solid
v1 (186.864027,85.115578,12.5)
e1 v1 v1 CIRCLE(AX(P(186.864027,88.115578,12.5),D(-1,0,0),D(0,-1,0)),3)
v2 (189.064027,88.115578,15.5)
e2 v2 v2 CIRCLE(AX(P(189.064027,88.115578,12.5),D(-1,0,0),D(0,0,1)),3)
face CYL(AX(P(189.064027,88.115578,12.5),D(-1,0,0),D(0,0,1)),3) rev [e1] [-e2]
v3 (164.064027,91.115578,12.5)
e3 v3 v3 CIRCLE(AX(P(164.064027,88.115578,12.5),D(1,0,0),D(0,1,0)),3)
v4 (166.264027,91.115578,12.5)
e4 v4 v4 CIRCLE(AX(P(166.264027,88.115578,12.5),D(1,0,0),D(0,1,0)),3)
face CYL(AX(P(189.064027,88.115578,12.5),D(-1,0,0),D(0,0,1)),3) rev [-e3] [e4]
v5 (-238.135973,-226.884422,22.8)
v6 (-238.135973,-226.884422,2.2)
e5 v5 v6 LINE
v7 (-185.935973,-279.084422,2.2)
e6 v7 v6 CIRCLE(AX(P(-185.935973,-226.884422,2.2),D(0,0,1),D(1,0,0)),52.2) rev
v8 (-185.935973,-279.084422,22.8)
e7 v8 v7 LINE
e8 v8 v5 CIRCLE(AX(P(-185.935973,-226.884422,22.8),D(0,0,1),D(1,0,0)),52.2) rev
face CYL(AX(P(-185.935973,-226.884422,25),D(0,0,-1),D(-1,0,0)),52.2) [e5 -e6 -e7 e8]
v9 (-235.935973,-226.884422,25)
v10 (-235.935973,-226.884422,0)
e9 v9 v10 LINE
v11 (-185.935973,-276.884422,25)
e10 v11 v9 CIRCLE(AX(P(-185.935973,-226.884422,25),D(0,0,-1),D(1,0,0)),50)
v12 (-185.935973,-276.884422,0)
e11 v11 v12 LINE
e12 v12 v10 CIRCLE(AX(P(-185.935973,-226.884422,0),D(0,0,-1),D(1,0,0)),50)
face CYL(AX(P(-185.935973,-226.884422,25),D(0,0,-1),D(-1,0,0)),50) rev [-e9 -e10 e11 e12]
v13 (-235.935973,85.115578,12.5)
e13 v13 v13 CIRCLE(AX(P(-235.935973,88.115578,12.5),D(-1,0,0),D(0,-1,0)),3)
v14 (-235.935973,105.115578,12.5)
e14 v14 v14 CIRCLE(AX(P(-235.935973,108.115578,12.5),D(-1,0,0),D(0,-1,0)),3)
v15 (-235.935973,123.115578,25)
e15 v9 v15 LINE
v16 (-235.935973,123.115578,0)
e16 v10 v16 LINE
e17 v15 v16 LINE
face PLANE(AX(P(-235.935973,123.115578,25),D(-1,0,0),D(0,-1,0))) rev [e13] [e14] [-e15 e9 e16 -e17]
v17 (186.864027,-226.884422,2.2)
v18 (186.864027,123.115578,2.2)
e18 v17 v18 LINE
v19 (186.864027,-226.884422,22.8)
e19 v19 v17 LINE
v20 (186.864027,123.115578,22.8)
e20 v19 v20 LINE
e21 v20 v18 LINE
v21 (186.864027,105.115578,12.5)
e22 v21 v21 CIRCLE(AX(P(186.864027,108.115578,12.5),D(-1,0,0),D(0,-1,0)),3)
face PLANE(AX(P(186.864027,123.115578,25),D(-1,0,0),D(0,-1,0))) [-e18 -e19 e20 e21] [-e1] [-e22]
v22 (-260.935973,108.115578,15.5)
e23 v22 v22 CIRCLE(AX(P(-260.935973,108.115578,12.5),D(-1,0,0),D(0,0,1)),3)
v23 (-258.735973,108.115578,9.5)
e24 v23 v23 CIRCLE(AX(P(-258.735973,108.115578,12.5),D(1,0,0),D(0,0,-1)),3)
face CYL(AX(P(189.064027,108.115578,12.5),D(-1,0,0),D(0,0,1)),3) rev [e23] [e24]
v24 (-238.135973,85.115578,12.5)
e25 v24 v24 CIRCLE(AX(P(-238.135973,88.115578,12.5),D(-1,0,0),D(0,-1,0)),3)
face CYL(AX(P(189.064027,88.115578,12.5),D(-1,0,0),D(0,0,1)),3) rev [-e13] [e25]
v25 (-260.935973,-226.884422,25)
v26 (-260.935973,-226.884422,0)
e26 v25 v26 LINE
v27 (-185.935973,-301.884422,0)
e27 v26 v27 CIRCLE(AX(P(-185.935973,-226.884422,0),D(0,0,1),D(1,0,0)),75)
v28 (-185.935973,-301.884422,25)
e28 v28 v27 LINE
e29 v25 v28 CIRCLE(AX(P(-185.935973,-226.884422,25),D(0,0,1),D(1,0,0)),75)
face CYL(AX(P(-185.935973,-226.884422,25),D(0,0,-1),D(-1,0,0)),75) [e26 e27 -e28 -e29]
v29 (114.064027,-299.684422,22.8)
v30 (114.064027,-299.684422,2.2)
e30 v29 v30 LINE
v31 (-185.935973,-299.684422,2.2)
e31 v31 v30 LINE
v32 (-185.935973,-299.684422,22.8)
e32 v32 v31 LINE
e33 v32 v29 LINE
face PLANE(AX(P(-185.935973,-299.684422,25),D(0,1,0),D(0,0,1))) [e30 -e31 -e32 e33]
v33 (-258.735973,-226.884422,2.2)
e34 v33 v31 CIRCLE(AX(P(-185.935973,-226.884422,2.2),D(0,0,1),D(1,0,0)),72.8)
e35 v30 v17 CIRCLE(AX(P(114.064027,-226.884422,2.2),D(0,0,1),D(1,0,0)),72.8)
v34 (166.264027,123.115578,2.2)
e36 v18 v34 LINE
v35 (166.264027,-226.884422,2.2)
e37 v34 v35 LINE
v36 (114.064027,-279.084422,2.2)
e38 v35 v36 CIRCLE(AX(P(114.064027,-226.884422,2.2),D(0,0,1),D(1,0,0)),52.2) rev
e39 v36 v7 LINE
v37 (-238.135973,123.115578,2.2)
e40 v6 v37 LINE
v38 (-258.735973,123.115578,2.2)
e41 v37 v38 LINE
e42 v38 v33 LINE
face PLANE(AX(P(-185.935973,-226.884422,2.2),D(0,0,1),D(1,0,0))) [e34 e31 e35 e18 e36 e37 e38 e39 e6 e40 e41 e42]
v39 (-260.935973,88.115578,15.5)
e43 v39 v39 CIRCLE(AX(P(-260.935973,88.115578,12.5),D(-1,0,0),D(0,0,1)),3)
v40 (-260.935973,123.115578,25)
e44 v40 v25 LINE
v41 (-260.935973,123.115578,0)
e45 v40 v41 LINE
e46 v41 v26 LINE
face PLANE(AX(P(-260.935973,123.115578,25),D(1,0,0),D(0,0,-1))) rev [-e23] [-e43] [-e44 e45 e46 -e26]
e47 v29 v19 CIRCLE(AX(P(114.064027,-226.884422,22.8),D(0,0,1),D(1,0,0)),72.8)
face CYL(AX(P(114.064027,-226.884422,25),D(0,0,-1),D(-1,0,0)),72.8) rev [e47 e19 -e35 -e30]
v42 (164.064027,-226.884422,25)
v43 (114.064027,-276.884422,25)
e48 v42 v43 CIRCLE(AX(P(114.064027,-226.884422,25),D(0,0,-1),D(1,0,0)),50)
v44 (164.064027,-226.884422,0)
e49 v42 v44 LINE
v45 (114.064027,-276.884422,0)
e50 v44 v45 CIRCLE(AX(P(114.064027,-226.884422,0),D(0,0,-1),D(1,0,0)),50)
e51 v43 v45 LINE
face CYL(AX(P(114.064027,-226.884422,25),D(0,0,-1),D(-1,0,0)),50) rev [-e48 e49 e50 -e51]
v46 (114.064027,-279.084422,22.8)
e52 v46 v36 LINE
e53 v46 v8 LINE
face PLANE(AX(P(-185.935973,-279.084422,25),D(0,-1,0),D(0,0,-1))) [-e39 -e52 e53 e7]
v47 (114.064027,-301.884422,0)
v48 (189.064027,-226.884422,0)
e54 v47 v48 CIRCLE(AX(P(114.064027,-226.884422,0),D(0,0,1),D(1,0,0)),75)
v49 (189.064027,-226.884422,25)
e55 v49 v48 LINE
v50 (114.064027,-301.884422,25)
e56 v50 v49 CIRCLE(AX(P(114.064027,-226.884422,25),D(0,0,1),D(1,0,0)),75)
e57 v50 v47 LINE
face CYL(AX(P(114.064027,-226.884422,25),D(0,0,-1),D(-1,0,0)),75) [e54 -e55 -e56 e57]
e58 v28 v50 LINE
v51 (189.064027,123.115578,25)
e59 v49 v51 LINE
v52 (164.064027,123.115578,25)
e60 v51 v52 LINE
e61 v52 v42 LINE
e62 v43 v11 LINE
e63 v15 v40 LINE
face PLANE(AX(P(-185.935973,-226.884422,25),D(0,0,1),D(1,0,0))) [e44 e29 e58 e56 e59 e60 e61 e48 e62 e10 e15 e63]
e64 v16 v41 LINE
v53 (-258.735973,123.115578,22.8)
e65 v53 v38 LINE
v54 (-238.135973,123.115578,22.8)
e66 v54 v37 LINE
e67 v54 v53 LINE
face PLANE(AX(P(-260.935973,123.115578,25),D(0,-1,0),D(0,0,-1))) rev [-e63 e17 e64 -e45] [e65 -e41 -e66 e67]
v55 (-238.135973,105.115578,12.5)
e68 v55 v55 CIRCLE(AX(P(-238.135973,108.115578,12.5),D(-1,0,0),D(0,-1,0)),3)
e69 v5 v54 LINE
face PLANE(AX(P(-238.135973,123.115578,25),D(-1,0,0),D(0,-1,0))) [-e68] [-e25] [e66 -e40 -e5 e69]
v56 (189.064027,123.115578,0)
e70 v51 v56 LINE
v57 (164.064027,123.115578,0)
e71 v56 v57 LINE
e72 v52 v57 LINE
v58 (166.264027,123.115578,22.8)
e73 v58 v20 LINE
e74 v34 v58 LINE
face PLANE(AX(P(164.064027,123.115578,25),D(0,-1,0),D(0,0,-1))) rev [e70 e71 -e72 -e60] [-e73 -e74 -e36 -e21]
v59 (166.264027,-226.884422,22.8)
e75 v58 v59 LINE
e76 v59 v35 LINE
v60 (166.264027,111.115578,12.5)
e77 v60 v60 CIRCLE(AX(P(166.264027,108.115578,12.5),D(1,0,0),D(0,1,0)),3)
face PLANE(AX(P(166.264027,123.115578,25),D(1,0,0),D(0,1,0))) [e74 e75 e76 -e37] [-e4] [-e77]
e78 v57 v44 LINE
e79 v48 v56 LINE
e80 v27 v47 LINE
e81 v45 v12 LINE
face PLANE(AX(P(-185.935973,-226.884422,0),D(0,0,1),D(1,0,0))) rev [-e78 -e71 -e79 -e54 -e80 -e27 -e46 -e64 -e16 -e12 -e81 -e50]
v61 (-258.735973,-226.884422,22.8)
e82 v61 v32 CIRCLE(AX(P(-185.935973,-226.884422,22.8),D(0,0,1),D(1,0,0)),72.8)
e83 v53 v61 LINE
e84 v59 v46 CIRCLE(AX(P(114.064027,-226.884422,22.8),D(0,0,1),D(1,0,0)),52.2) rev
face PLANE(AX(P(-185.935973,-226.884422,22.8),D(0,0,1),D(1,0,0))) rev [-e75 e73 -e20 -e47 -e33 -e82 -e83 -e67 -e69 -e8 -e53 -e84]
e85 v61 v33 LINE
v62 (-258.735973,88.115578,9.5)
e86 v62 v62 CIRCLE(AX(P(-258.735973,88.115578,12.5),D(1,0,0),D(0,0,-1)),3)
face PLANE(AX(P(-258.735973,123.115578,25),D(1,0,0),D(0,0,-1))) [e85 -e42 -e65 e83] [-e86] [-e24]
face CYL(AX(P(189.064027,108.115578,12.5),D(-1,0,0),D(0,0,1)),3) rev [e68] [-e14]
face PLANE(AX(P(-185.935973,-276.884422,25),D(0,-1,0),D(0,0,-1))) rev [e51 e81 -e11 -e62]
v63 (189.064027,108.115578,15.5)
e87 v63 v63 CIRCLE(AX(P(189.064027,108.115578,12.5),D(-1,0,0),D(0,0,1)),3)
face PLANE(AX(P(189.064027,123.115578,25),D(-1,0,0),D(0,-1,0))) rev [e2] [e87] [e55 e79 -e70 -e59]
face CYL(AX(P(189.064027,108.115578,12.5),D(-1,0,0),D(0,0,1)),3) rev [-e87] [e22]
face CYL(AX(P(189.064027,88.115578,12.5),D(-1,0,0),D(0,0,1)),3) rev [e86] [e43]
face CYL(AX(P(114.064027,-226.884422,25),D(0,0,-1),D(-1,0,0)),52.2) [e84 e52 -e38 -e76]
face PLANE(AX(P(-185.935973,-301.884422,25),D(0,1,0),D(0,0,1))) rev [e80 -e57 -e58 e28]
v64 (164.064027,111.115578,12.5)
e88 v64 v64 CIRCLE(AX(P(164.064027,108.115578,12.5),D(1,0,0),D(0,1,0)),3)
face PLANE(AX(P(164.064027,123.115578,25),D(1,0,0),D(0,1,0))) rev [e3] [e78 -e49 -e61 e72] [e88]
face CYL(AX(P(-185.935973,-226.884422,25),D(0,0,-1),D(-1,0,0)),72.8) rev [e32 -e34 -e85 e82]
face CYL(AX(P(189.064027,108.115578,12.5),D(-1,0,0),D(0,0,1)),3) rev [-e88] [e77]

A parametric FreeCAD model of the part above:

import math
import FreeCAD as App
import Part
import Sketcher
from FreeCAD import Vector
Q = App.Units.Quantity


def faces_at(feature, points):
    """Names of the faces that lie closest to the given points."""
    faces = feature.Shape.Faces
    near = lambda p: min(range(len(faces)), key=lambda i: faces[i].distToShape(Part.Vertex(*p))[0])
    return sorted({f"Face{near(p) + 1}" for p in points})

doc = App.newDocument("Part")
body = doc.addObject("PartDesign::Body", "Body")

sketch1 = body.newObject("Sketcher::SketchObject", "Sketch")
sketch1.AttachmentSupport = (doc.getObject("XY_Plane"), [""])
sketch1.MapMode = "FlatFace"
sketch1.addGeometry([
    Part.LineSegment(Vector(-261, 123, 0), Vector(-261, -227, 0)),
    Part.ArcOfCircle(Part.Circle(Vector(-186, -227, 0), Vector(0, 0, 1), 75), math.radians(180), math.radians(270)),
    Part.LineSegment(Vector(-186, -302, 0), Vector(114, -302, 0)),
    Part.ArcOfCircle(Part.Circle(Vector(114, -227, 0), Vector(0, 0, 1), 75), math.radians(-90), math.radians(0)),
    Part.LineSegment(Vector(189, -227, 0), Vector(189, 123, 0)),
    Part.LineSegment(Vector(189, 123, 0), Vector(164, 123, 0)),
    Part.LineSegment(Vector(164, 123, 0), Vector(164, -227, 0)),
    Part.ArcOfCircle(Part.Circle(Vector(114, -227, 0), Vector(0, 0, 1), 50), math.radians(-90), math.radians(0)),
    Part.LineSegment(Vector(114, -277, 0), Vector(-186, -277, 0)),
    Part.ArcOfCircle(Part.Circle(Vector(-186, -227, 0), Vector(0, 0, 1), 50), math.radians(-180), math.radians(-90)),
    Part.LineSegment(Vector(-236, -227, 0), Vector(-236, 123, 0)),
    Part.LineSegment(Vector(-236, 123, 0), Vector(-261, 123, 0)),
], False)
sketch1.addConstraint([
    Sketcher.Constraint("Tangent", 0, 2, 1, 1),
    Sketcher.Constraint("Tangent", 1, 2, 2, 1),
    Sketcher.Constraint("Tangent", 2, 2, 3, 1),
    Sketcher.Constraint("Tangent", 3, 2, 4, 1),
    Sketcher.Constraint("Coincident", 4, 2, 5, 1),
    Sketcher.Constraint("Coincident", 5, 2, 6, 1),
    Sketcher.Constraint("Tangent", 6, 2, 7, 2),
    Sketcher.Constraint("Tangent", 7, 1, 8, 1),
    Sketcher.Constraint("Tangent", 8, 2, 9, 2),
    Sketcher.Constraint("Tangent", 9, 1, 10, 1),
    Sketcher.Constraint("Coincident", 10, 2, 11, 1),
    Sketcher.Constraint("Coincident", 11, 2, 0, 1),
    Sketcher.Constraint("Vertical", 0),
    Sketcher.Constraint("Horizontal", 2),
    Sketcher.Constraint("Vertical", 4),
    Sketcher.Constraint("Horizontal", 5),
    Sketcher.Constraint("Vertical", 6),
    Sketcher.Constraint("Horizontal", 8),
    Sketcher.Constraint("Vertical", 10),
    Sketcher.Constraint("Horizontal", 11),
    Sketcher.Constraint("Coincident", 7, 3, 3, 3),
    Sketcher.Constraint("Coincident", 9, 3, 1, 3),
    Sketcher.Constraint("Equal", 1, 3),
    Sketcher.Constraint("Horizontal", 5, 2, 10, 2),
    Sketcher.Constraint("Radius", 1, Q("75 mm")),
    Sketcher.Constraint("Radius", 7, Q("50 mm")),
    Sketcher.Constraint("DistanceX", 2, 1, 2, 2, Q("300 mm")),
    Sketcher.Constraint("DistanceY", 0, 2, 0, 1, Q("350 mm")),
    Sketcher.Constraint("DistanceX", 1, 3, -1, 1, Q("185.935973 mm")),
    Sketcher.Constraint("DistanceY", 1, 3, -1, 1, Q("226.884422 mm")),
])
pad1 = body.newObject("PartDesign::Pad", "Pad")
pad1.Profile = sketch1
pad1.Length = 25
doc.recompute()

thickness = body.newObject("PartDesign::Thickness", "Thickness")
thickness.Base = (pad1, faces_at(pad1, [(-248.436, 123.116, 12.5)]))
thickness.Value = 2.2
thickness.Reversed = True
thickness.Join = "Intersection"

sketch2 = body.newObject("Sketcher::SketchObject", "Sketch001")
sketch2.AttachmentSupport = (doc.getObject("XZ_Plane"), [""])
sketch2.MapMode = "FlatFace"
sketch2.AttachmentOffset = App.Placement(Vector(0, 0, -123.115578), App.Rotation())
sketch2.addGeometry([
    Part.LineSegment(Vector(166, 2, 0), Vector(166, 23, 0)),
    Part.LineSegment(Vector(166, 23, 0), Vector(187, 23, 0)),
    Part.LineSegment(Vector(187, 23, 0), Vector(187, 2, 0)),
    Part.LineSegment(Vector(187, 2, 0), Vector(166, 2, 0)),
], False)
sketch2.addConstraint([
    Sketcher.Constraint("Coincident", 0, 2, 1, 1),
    Sketcher.Constraint("Coincident", 1, 2, 2, 1),
    Sketcher.Constraint("Coincident", 2, 2, 3, 1),
    Sketcher.Constraint("Coincident", 3, 2, 0, 1),
    Sketcher.Constraint("Vertical", 0),
    Sketcher.Constraint("Horizontal", 1),
    Sketcher.Constraint("Vertical", 2),
    Sketcher.Constraint("Horizontal", 3),
    Sketcher.Constraint("Equal", 3, 0),
    Sketcher.Constraint("DistanceX", 1, 1, 1, 2, Q("20.6 mm")),
    Sketcher.Constraint("DistanceY", -1, 1, 0, 2, Q("22.8 mm")),
    Sketcher.Constraint("DistanceX", -1, 1, 0, 2, Q("166.264027 mm")),
])
pocket1 = body.newObject("PartDesign::Pocket", "Pocket")
pocket1.Profile = sketch2
pocket1.Length = 5
pocket1.Reversed = True

sketch3 = body.newObject("Sketcher::SketchObject", "Sketch002")
sketch3.AttachmentSupport = (doc.getObject("YZ_Plane"), [""])
sketch3.MapMode = "FlatFace"
sketch3.AttachmentOffset = App.Placement(Vector(0, 0, -260.935973), App.Rotation())
sketch3.addGeometry([
    Part.Circle(Vector(108.1, 12.5, 0), Vector(0, 0, 1), 3),
    Part.Circle(Vector(88.1, 12.5, 0), Vector(0, 0, 1), 3),
], False)
sketch3.addConstraint([
    Sketcher.Constraint("Equal", 0, 1),
    Sketcher.Constraint("Horizontal", 0, 3, 1, 3),
    Sketcher.Constraint("Diameter", 0, Q("6 mm")),
    Sketcher.Constraint("DistanceX", 1, 3, 0, 3, Q("20 mm")),
    Sketcher.Constraint("DistanceY", -1, 1, 0, 3, Q("12.5 mm")),
    Sketcher.Constraint("DistanceX", -1, 1, 0, 3, Q("108.115578 mm")),
])
pocket2 = body.newObject("PartDesign::Pocket", "Pocket001")
pocket2.Profile = sketch3
pocket2.Type = "ThroughAll"
pocket2.Reversed = True

doc.recompute()
